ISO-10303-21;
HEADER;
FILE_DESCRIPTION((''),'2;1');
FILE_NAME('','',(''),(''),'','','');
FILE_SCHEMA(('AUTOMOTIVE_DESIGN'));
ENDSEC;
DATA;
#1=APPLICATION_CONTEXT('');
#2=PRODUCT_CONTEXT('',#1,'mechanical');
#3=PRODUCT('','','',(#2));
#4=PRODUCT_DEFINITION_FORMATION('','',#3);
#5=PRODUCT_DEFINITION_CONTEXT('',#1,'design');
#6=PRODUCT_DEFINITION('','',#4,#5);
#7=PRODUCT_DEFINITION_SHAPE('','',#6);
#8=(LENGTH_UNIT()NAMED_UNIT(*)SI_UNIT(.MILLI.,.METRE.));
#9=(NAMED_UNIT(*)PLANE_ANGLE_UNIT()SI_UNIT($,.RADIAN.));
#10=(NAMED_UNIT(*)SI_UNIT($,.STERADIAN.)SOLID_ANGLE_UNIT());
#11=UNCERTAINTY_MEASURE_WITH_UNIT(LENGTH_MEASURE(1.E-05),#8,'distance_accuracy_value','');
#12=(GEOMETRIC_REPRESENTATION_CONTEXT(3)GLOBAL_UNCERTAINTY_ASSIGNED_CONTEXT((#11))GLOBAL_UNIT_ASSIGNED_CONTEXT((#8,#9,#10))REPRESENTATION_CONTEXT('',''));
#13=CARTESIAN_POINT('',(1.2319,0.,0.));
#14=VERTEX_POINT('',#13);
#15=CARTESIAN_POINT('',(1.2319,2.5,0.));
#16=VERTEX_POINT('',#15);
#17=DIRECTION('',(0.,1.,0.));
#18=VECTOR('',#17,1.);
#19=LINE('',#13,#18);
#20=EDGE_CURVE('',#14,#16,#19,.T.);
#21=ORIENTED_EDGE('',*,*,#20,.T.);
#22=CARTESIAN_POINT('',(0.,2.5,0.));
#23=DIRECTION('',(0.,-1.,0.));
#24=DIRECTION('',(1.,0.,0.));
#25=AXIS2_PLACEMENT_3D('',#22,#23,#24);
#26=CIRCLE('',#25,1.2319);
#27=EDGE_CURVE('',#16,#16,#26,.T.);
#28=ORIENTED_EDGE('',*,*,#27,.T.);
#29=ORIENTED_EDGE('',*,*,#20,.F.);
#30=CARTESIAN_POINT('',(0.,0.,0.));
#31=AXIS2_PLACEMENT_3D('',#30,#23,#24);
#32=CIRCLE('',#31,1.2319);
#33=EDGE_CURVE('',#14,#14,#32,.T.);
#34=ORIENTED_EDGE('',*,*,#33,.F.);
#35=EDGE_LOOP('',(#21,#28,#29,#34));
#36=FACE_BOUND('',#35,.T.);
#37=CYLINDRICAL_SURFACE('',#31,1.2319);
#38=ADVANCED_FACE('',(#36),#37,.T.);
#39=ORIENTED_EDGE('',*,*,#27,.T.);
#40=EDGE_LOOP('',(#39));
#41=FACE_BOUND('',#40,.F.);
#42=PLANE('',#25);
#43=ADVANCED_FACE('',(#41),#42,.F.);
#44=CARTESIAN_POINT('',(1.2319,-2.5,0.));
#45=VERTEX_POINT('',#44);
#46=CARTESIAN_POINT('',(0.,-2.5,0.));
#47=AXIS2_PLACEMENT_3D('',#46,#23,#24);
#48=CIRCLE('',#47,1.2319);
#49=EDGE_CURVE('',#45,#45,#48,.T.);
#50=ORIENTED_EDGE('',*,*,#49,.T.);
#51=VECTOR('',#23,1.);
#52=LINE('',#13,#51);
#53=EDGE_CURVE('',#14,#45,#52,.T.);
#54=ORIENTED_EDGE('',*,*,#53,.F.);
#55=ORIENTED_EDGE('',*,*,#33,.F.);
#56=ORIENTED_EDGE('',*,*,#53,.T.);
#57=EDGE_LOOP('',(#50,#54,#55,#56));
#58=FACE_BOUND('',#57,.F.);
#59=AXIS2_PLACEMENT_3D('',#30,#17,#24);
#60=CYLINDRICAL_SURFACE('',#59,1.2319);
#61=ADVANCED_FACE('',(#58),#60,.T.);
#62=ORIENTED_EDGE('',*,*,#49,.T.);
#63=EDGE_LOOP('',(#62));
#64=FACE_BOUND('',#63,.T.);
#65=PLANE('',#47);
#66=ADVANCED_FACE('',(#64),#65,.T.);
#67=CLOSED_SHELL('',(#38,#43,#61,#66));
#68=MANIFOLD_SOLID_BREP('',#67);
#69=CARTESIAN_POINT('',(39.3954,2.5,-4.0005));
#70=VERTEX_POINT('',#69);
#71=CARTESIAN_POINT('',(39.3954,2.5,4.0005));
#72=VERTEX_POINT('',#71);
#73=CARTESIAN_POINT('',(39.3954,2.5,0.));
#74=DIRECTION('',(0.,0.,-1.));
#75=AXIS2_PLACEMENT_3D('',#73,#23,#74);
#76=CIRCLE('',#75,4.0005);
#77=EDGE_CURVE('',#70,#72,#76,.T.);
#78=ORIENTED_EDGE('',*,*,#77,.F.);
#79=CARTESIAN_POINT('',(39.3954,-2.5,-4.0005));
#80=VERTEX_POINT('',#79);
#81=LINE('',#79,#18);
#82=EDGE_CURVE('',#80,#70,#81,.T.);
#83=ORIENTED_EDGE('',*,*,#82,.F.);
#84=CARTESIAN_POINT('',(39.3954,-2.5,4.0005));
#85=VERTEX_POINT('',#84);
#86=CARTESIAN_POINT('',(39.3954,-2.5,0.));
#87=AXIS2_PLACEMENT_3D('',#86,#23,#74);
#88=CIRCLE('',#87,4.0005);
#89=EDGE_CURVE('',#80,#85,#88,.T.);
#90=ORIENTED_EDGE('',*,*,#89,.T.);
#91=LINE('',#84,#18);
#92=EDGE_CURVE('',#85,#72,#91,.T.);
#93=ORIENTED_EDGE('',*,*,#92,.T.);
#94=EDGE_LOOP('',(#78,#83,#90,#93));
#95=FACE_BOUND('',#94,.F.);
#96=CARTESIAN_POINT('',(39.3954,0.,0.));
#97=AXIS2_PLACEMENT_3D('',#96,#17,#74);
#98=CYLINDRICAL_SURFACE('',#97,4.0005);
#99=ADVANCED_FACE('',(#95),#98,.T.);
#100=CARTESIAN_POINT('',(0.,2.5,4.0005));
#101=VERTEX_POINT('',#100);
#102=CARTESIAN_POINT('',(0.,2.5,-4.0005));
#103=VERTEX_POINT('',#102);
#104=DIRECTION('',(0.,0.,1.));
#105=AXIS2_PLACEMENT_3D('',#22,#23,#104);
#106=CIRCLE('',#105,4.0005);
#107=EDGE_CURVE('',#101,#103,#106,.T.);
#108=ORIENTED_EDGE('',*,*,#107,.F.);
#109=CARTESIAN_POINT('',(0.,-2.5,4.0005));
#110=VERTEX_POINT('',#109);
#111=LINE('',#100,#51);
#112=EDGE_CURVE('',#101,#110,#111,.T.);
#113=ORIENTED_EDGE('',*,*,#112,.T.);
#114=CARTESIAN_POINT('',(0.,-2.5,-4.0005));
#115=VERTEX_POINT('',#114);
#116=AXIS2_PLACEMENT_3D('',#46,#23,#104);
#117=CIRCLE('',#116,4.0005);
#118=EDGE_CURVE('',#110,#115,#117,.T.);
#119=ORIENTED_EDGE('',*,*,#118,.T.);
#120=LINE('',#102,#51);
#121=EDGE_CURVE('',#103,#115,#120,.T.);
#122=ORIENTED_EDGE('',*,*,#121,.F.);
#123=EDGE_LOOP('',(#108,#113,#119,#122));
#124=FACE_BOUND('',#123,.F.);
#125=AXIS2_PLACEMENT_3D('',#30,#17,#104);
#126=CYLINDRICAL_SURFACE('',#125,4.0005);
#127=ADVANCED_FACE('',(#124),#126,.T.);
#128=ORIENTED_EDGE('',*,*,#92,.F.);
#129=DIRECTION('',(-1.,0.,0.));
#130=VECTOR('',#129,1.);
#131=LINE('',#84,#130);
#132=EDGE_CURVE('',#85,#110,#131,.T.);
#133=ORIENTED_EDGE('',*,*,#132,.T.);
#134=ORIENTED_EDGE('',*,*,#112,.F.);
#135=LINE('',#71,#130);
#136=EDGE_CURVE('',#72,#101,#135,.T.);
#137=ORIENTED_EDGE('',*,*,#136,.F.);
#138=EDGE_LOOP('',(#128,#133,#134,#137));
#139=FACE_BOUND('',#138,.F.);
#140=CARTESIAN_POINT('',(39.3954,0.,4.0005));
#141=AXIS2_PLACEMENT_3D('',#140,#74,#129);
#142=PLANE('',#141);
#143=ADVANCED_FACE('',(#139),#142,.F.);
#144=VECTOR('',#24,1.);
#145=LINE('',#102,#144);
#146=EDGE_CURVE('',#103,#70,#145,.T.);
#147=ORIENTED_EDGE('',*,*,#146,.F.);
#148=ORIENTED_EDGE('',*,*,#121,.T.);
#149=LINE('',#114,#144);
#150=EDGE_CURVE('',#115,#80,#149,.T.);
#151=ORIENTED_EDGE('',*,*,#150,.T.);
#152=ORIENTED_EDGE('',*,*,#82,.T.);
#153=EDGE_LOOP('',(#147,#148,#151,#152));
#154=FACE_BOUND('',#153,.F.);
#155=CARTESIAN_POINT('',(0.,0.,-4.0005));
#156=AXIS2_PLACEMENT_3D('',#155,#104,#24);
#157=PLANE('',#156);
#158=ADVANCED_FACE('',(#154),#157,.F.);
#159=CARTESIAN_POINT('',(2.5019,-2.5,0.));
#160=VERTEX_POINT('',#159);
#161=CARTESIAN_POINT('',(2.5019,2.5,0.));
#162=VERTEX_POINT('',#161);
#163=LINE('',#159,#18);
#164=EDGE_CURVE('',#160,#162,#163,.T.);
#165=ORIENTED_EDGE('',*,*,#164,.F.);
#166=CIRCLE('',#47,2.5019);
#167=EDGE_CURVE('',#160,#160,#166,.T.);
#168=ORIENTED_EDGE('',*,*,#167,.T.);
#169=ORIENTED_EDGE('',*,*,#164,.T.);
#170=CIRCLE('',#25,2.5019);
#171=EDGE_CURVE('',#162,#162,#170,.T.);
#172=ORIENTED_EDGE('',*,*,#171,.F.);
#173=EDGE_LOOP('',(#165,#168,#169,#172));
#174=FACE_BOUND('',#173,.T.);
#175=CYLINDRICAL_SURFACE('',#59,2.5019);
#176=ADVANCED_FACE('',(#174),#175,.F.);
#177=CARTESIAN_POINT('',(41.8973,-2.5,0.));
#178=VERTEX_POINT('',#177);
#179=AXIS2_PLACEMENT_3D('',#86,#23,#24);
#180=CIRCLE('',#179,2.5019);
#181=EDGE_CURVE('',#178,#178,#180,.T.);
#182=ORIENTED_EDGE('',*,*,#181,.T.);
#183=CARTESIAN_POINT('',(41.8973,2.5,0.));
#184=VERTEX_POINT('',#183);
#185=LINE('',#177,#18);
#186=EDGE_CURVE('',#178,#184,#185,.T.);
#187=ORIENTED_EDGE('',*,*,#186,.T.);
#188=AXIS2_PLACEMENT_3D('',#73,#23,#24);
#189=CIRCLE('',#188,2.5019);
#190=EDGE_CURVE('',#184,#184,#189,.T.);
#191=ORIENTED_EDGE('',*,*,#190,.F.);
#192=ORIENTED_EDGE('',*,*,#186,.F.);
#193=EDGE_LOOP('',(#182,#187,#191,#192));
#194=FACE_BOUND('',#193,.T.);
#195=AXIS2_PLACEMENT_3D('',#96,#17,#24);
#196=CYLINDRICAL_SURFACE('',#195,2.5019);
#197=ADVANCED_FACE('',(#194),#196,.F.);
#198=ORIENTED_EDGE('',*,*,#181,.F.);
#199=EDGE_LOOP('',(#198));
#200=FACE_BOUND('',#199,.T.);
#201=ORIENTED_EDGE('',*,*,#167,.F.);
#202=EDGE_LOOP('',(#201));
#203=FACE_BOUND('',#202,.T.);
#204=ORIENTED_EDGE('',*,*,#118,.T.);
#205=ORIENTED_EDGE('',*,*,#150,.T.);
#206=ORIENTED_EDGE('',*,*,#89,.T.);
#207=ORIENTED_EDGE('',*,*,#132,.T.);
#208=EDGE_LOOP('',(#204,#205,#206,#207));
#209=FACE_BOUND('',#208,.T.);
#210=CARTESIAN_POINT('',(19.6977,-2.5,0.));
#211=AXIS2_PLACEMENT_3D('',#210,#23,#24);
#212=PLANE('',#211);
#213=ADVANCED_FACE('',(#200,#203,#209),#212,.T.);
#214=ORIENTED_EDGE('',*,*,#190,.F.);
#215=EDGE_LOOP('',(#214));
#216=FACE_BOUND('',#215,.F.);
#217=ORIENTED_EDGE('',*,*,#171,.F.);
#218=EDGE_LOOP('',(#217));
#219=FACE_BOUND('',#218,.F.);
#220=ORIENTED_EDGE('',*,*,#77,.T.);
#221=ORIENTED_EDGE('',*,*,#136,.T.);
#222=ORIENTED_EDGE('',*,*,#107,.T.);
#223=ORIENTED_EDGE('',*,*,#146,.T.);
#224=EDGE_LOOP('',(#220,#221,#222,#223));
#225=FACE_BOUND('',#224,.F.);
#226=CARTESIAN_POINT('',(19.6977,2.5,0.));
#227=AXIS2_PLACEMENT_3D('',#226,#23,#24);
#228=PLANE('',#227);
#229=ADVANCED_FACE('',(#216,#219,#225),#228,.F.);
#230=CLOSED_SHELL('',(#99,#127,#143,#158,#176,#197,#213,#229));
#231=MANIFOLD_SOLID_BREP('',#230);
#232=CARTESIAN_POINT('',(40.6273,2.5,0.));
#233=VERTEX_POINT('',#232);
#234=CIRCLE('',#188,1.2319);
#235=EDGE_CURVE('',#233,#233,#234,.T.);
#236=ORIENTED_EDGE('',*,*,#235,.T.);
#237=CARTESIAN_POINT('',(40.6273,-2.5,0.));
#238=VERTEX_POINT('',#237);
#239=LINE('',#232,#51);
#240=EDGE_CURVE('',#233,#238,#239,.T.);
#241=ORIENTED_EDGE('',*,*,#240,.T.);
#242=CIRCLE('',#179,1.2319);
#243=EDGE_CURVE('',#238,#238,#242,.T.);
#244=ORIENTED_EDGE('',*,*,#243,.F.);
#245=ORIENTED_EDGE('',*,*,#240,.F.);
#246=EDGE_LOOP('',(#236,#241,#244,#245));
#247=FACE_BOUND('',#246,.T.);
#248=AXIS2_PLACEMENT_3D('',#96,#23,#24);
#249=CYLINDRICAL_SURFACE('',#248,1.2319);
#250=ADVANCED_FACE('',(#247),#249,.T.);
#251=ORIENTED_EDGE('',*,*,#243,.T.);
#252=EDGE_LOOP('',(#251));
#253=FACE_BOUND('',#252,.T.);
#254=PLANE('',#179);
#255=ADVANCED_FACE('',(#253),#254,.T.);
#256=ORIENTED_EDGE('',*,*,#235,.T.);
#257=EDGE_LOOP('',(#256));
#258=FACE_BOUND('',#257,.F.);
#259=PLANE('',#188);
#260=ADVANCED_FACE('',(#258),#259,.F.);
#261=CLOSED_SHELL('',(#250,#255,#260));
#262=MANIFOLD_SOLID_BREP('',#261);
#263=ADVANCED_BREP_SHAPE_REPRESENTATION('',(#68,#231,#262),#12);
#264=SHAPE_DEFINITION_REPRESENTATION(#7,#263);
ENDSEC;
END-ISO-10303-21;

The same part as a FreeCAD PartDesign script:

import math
import FreeCAD as App
import Part
import Sketcher

V = App.Vector
Q = App.Units.Quantity

doc = App.newDocument("Part")
params = doc.addObject("Spreadsheet::Sheet", "Params")
for row, (alias, value) in enumerate([
    ("sketch1_diameter", "0.197 in"),
    ("sketch1_diameter2", "0.097 in"),
    ("sketch1_width", "1.551 in"),
    ("pad1_length", "5 mm"),
], start=1):
    params.set(f"A{row}", alias)
    params.set(f"B{row}", "=" + value)
    params.setAlias(f"B{row}", alias)

body = doc.addObject("PartDesign::Body", "Body")
body.AllowCompound = True

# Sketch on XZ plane
sketch1 = body.newObject("Sketcher::SketchObject", "Sketch")
sketch1.AttachmentSupport = (doc.getObject("XZ_Plane"), [""])
sketch1.MapMode = "FlatFace"
sketch1.addGeometry([
    Part.LineSegment(V(39.3954, 4.0005, 0), V(0, 4.0005, 0)),  # 0
    Part.ArcOfCircle(Part.Circle(V(0, 0, 0), V(0, 0, 1), 4.0005), math.radians(90), math.radians(270)),  # 1
    Part.LineSegment(V(0, -4.0005, 0), V(39.3954, -4.0005, 0)),  # 2
    Part.ArcOfCircle(Part.Circle(V(39.3954, 0, 0), V(0, 0, 1), 4.0005), math.radians(-90), math.radians(90)),  # 3
    Part.Circle(V(0, 0, 0), V(0, 0, 1), 2.5019),  # 4
    Part.Circle(V(39.3954, 0, 0), V(0, 0, 1), 2.5019),  # 5
    Part.Circle(V(0, 0, 0), V(0, 0, 1), 1.2319),  # 6
    Part.Circle(V(39.3954, 0, 0), V(0, 0, 1), 1.2319),  # 7
], False)
sketch1.addConstraint([
    Sketcher.Constraint("Tangent", 0, 2, 1, 1),
    Sketcher.Constraint("Tangent", 1, 2, 2, 1),
    Sketcher.Constraint("Tangent", 2, 2, 3, 1),
    Sketcher.Constraint("Tangent", 3, 2, 0, 1),
    Sketcher.Constraint("Horizontal", 0),
    Sketcher.Constraint("Horizontal", 2),
    Sketcher.Constraint("Coincident", 1, 3, -1, 1),
    Sketcher.Constraint("Coincident", 4, 3, -1, 1),
    Sketcher.Constraint("Coincident", 6, 3, -1, 1),
    Sketcher.Constraint("Coincident", 5, 3, 3, 3),
    Sketcher.Constraint("Coincident", 7, 3, 3, 3),
    Sketcher.Constraint("Equal", 4, 5),
    Sketcher.Constraint("Equal", 6, 7),
    Sketcher.Constraint("Diameter", 4, Q("0.197 in")),
    Sketcher.Constraint("Diameter", 6, Q("0.097 in")),
    Sketcher.Constraint("Radius", 1, Q("0.1575 in")),
    Sketcher.Constraint("DistanceX", 0, 2, 0, 1, Q("1.551 in")),
])
sketch1.setExpression("Constraints[13]", "Params.sketch1_diameter")
sketch1.setExpression("Constraints[14]", "Params.sketch1_diameter2")
sketch1.setExpression("Constraints[16]", "Params.sketch1_width")
pad1 = body.newObject("PartDesign::Pad", "Pad")
pad1.Profile = sketch1
pad1.setExpression("Length", "Params.pad1_length")
pad1.Midplane = True

doc.recompute()
